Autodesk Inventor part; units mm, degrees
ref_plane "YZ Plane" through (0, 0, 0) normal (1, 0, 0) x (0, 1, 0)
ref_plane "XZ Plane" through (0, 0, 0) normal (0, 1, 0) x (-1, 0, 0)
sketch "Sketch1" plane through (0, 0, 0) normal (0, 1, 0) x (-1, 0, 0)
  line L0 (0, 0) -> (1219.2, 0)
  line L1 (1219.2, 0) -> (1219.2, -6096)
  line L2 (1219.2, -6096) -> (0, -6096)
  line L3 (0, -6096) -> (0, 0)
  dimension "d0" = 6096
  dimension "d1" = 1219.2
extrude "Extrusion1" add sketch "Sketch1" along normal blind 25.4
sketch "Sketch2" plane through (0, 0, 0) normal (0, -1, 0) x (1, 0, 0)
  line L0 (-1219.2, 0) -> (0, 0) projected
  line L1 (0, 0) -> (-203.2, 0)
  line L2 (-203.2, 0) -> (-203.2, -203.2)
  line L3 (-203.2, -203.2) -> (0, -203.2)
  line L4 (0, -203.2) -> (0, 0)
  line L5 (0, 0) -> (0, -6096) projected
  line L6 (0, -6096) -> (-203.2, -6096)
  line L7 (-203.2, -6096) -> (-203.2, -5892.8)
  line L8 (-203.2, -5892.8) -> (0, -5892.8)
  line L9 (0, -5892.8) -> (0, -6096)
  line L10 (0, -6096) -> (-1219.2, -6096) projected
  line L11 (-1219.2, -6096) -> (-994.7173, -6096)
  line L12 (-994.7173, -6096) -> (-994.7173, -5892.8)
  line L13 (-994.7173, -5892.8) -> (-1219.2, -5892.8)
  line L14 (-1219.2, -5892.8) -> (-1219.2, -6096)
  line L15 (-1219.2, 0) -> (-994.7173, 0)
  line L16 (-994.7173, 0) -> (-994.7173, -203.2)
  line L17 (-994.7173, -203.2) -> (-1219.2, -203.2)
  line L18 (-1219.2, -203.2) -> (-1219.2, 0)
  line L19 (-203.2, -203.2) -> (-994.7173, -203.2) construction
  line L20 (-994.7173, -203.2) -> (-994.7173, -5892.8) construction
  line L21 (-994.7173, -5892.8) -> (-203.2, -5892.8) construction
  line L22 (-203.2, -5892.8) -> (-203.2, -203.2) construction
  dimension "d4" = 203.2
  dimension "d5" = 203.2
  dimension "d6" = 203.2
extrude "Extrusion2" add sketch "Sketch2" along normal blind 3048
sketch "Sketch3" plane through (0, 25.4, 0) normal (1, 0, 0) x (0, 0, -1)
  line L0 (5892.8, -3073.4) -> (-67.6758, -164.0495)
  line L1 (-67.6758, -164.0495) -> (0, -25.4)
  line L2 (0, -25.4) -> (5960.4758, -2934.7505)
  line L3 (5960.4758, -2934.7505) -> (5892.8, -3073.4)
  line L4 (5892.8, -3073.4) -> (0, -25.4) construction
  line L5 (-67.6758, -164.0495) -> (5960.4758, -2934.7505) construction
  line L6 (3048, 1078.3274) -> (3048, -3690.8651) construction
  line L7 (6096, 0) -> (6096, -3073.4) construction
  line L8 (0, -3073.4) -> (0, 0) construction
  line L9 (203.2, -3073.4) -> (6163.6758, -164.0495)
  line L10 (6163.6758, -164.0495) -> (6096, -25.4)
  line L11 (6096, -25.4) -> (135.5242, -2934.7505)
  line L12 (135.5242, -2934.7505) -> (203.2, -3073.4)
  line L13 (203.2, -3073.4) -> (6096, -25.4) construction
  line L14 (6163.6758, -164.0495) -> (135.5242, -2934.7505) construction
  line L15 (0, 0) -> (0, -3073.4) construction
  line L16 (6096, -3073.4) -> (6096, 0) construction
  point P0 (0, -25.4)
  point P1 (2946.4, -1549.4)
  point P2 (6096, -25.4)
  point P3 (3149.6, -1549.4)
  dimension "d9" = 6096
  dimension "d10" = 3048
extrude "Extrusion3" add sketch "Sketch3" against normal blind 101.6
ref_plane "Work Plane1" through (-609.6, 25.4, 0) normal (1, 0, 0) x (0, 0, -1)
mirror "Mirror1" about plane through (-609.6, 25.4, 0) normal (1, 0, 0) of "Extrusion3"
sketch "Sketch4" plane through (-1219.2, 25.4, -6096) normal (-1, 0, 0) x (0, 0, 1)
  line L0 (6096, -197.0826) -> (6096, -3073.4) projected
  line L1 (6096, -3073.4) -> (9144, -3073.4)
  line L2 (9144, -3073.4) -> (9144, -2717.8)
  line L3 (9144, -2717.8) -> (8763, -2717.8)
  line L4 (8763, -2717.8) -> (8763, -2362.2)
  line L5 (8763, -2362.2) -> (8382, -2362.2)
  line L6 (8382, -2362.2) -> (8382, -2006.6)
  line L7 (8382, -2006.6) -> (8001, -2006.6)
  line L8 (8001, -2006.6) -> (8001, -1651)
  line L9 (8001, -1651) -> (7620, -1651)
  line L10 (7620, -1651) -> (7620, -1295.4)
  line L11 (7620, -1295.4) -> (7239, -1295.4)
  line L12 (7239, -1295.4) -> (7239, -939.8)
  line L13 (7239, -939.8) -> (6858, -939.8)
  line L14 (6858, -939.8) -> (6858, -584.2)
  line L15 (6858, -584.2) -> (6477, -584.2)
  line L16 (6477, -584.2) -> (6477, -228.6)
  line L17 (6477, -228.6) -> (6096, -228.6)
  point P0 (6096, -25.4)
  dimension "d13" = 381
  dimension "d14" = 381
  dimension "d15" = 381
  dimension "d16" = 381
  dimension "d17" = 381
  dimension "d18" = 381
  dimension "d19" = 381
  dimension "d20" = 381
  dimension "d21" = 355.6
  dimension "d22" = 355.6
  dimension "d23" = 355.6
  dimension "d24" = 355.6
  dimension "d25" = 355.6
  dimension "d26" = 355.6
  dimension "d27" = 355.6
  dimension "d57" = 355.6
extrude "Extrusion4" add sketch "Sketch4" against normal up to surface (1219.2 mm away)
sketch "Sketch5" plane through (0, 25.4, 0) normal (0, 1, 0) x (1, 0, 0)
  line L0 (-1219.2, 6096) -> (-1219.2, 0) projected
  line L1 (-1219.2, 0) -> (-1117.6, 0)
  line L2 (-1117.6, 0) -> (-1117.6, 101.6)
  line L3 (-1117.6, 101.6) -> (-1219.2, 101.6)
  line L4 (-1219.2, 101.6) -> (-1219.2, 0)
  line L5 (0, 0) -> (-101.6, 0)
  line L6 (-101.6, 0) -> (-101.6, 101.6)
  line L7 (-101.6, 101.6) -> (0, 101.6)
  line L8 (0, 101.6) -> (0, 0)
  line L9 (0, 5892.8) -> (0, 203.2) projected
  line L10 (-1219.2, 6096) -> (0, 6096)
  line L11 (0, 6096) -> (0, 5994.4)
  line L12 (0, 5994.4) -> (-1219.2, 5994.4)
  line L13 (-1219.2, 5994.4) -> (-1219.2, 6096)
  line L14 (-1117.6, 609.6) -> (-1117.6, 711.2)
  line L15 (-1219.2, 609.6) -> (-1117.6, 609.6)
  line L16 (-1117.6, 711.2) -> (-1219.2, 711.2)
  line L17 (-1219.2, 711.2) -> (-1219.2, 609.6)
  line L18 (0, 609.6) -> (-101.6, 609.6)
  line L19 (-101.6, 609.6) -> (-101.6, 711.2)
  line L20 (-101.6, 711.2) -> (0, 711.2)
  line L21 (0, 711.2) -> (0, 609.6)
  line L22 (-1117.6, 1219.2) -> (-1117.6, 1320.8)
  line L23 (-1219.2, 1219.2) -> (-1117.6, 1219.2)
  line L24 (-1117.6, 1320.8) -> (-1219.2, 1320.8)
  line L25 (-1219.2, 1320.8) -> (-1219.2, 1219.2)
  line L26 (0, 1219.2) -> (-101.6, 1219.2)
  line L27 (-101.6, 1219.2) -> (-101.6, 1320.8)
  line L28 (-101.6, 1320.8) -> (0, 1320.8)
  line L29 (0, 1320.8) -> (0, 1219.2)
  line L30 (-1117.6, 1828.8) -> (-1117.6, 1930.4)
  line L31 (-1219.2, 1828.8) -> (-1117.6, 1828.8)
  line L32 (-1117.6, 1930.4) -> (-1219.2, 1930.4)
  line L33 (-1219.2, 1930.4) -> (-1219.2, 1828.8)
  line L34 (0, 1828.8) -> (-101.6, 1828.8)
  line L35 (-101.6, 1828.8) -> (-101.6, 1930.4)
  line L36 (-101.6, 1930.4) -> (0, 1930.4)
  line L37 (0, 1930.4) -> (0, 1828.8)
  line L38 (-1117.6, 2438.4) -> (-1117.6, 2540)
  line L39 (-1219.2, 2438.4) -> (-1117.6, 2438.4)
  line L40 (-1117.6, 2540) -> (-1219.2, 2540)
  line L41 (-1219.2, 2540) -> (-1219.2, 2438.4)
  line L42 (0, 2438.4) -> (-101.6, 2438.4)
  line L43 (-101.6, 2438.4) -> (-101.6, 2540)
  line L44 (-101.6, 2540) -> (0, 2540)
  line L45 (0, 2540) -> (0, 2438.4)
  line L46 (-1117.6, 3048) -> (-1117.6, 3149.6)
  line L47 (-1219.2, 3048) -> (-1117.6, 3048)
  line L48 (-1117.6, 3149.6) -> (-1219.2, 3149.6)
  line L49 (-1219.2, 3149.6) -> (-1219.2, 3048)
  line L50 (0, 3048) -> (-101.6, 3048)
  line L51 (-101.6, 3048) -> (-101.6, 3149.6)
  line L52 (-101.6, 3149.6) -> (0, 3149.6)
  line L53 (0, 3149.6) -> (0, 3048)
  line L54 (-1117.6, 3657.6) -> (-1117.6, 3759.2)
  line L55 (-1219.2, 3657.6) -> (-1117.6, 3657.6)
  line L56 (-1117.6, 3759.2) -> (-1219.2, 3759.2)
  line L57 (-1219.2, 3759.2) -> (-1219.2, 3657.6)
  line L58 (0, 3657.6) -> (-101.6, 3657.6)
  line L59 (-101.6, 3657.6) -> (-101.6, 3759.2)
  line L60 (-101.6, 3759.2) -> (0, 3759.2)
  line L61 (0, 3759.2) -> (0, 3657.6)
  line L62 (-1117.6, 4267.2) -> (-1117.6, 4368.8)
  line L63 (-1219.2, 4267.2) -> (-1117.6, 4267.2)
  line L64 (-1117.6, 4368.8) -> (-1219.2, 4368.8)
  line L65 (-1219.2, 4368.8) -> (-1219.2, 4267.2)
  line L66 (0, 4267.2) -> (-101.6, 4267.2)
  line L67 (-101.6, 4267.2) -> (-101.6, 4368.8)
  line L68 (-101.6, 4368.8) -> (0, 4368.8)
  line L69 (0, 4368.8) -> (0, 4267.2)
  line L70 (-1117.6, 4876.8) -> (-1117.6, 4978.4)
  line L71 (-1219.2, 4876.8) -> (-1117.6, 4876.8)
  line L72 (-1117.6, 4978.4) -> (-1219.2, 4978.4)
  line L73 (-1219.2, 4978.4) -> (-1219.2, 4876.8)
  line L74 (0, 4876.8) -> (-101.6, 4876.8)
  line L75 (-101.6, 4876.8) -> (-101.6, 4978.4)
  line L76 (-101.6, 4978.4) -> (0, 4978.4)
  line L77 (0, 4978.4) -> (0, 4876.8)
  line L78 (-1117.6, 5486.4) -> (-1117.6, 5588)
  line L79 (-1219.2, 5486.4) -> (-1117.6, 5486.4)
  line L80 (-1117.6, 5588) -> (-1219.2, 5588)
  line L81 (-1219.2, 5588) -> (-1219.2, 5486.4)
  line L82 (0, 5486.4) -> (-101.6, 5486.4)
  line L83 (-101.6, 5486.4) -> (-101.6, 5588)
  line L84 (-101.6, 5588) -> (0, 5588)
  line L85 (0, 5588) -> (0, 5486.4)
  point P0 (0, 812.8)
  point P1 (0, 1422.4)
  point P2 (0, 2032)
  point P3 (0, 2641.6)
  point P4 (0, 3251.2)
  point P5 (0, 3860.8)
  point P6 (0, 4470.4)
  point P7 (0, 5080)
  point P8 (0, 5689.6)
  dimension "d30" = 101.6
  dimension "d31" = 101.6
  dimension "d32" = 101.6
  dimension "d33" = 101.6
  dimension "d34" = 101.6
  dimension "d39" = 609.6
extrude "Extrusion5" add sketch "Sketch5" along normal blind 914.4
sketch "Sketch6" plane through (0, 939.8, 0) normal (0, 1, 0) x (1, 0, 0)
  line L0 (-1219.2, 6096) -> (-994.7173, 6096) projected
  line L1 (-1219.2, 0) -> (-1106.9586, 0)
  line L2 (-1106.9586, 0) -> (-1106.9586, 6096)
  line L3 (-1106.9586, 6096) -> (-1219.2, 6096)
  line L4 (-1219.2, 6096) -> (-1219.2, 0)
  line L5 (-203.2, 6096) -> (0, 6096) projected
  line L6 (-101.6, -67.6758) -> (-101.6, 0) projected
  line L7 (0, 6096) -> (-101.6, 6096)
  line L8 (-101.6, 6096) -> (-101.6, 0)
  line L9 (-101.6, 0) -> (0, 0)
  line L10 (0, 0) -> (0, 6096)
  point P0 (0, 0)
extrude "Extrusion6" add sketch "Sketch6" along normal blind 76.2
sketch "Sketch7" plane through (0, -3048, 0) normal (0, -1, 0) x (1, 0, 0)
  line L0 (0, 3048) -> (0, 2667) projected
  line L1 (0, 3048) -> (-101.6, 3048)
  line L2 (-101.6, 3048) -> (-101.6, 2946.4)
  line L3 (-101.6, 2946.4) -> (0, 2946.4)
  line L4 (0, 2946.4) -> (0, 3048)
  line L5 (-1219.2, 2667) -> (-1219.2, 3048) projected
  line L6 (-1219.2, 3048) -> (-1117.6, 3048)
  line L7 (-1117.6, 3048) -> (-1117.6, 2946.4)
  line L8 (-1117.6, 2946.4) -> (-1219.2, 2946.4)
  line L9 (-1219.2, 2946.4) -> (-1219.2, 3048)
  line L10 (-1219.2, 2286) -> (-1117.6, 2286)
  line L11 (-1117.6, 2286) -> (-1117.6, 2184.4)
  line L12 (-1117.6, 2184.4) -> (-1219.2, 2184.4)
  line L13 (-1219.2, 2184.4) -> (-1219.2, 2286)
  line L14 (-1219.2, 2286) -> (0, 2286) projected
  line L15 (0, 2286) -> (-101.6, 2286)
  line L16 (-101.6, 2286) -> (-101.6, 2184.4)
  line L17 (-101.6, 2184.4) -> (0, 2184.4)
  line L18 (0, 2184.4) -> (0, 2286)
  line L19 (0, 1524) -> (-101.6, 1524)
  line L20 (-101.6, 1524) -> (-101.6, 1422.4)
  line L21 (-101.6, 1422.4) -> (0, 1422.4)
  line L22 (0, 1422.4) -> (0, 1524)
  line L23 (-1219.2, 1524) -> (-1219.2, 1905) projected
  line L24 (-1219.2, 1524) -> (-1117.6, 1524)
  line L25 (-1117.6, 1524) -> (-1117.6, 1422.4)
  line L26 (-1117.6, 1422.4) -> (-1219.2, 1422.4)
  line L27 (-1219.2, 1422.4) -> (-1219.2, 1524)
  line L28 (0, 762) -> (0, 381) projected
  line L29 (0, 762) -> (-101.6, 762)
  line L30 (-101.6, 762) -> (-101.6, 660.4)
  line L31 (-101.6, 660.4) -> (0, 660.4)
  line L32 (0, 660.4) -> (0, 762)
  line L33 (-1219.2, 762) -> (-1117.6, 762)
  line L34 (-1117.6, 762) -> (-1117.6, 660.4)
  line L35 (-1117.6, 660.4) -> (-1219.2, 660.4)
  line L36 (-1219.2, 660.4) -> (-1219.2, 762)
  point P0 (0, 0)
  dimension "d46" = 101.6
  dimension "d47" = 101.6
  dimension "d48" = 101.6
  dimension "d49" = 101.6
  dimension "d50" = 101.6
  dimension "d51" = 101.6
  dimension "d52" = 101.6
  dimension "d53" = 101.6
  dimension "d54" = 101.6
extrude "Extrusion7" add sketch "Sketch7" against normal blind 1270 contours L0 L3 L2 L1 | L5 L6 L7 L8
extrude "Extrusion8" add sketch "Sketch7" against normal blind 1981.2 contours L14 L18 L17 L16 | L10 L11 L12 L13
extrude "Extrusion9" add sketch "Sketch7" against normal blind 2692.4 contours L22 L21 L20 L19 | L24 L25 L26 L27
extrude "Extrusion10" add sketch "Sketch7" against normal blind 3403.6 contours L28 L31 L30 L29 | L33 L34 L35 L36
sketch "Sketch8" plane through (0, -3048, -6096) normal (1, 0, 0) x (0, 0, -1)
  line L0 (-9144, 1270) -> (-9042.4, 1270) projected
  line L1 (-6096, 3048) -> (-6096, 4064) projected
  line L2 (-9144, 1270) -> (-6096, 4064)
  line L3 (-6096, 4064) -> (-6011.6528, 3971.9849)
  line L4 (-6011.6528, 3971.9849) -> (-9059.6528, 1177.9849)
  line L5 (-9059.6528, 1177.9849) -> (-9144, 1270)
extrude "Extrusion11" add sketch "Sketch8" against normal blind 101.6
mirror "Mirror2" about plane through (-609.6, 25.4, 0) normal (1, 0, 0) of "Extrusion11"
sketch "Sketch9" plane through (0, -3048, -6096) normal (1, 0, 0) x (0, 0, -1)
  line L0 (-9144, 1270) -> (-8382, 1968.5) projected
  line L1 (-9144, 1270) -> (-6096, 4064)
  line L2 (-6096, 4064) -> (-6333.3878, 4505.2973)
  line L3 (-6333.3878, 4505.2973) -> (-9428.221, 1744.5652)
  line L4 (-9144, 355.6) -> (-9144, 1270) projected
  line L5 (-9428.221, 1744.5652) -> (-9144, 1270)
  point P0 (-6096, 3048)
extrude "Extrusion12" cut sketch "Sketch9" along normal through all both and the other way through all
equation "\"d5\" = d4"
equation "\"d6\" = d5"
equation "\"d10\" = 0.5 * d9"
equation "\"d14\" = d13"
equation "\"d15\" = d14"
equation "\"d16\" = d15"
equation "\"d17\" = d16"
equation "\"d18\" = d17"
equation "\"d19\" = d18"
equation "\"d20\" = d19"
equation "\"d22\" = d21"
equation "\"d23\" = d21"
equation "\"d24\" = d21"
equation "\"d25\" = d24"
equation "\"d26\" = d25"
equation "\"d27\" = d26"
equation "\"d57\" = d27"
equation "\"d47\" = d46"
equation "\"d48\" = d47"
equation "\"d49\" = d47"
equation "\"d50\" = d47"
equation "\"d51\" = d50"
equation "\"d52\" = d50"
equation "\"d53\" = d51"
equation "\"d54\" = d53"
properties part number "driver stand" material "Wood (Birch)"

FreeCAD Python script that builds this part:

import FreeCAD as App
import Part
import Sketcher
Q = App.Units.Quantity


def add_polygon(sketch, points):
    """Adds a closed chain of lines whose ends are joined by coincident constraints."""
    first, n = sketch.GeometryCount, len(points)
    for a, b in zip(points, points[1:] + points[:1]):
        sketch.addGeometry(Part.LineSegment(App.Vector(*a, 0), App.Vector(*b, 0)), False)
    for i in range(n):
        sketch.addConstraint(Sketcher.Constraint("Coincident", first + i, 2, first + (i + 1) % n, 1))

doc = App.newDocument("Part")
body = doc.addObject("PartDesign::Body", "Body")

sketch1 = body.newObject("Sketcher::SketchObject", "Sketch")
sketch1.AttachmentSupport = (doc.getObject("XZ_Plane"), [""])
sketch1.MapMode = "FlatFace"
add_polygon(sketch1, [(-1219, 0), (0, 0), (0, -6096), (-1219, -6096)])
sketch1.addConstraint(Sketcher.Constraint("Horizontal", 0))
sketch1.addConstraint(Sketcher.Constraint("Vertical", 1))
sketch1.addConstraint(Sketcher.Constraint("Horizontal", 2))
sketch1.addConstraint(Sketcher.Constraint("Vertical", 3))
sketch1.addConstraint(Sketcher.Constraint("Coincident", 0, 2, -1, 1))
sketch1.addConstraint(Sketcher.Constraint("DistanceX", 0, 1, 0, 2, Q("48 in")))
sketch1.addConstraint(Sketcher.Constraint("DistanceY", 1, 2, 1, 1, Q("240 in")))
pad1 = body.newObject("PartDesign::Pad", "Pad")
pad1.Profile = sketch1
pad1.Length = Q("1 in")
pad1.Reversed = True

sketch2 = body.newObject("Sketcher::SketchObject", "Sketch001")
sketch2.AttachmentSupport = (doc.getObject("XZ_Plane"), [""])
sketch2.MapMode = "FlatFace"
add_polygon(sketch2, [(-1219, -6096), (-995, -6096), (-995, -5893), (-1219, -5893)])
add_polygon(sketch2, [(0, -6096), (0, -5893), (-203, -5893), (-203, -6096)])
add_polygon(sketch2, [(0, 0), (-203, 0), (-203, -203), (0, -203)])
add_polygon(sketch2, [(-995, 0), (-1219, 0), (-1219, -203), (-995, -203)])
sketch2.addConstraint(Sketcher.Constraint("Horizontal", 0))
sketch2.addConstraint(Sketcher.Constraint("Vertical", 1))
sketch2.addConstraint(Sketcher.Constraint("Horizontal", 2))
sketch2.addConstraint(Sketcher.Constraint("Vertical", 3))
sketch2.addConstraint(Sketcher.Constraint("Vertical", 4))
sketch2.addConstraint(Sketcher.Constraint("Horizontal", 5))
sketch2.addConstraint(Sketcher.Constraint("Vertical", 6))
sketch2.addConstraint(Sketcher.Constraint("Horizontal", 7))
sketch2.addConstraint(Sketcher.Constraint("Horizontal", 8))
sketch2.addConstraint(Sketcher.Constraint("Vertical", 9))
sketch2.addConstraint(Sketcher.Constraint("Horizontal", 10))
sketch2.addConstraint(Sketcher.Constraint("Vertical", 11))
sketch2.addConstraint(Sketcher.Constraint("Horizontal", 12))
sketch2.addConstraint(Sketcher.Constraint("Vertical", 13))
sketch2.addConstraint(Sketcher.Constraint("Horizontal", 14))
sketch2.addConstraint(Sketcher.Constraint("Vertical", 15))
sketch2.addConstraint(Sketcher.Constraint("Coincident", 11, 2, -1, 1))
sketch2.addConstraint(Sketcher.Constraint("PointOnObject", 4, 2, -2))
sketch2.addConstraint(Sketcher.Constraint("PointOnObject", 12, 2, -1))
sketch2.addConstraint(Sketcher.Constraint("Horizontal", 2, 2, 4, 2))
sketch2.addConstraint(Sketcher.Constraint("Horizontal", 3, 2, 6, 2))
sketch2.addConstraint(Sketcher.Constraint("Horizontal", 10, 2, 13, 2))
sketch2.addConstraint(Sketcher.Constraint("Vertical", 6, 2, 8, 2))
sketch2.addConstraint(Sketcher.Constraint("Vertical", 3, 2, 12, 2))
sketch2.addConstraint(Sketcher.Constraint("Vertical", 1, 2, 14, 2))
sketch2.addConstraint(Sketcher.Constraint("Equal", 10, 1))
sketch2.addConstraint(Sketcher.Constraint("Equal", 6, 9))
sketch2.addConstraint(Sketcher.Constraint("DistanceX", 5, 2, 5, 1, Q("8 in")))
sketch2.addConstraint(Sketcher.Constraint("DistanceY", 0, 2, -1, 1, Q("240 in")))
sketch2.addConstraint(Sketcher.Constraint("DistanceX", 2, 2, -1, 1, Q("48 in")))
sketch2.addConstraint(Sketcher.Constraint("DistanceX", 0, 1, 0, 2, Q("8.8379 in")))
pad2 = body.newObject("PartDesign::Pad", "Pad001")
pad2.Profile = sketch2
pad2.Length = Q("120 in")

sketch3 = body.newObject("Sketcher::SketchObject", "Sketch002")
sketch3.AttachmentSupport = (doc.getObject("YZ_Plane"), [""])
sketch3.MapMode = "FlatFace"
add_polygon(sketch3, [(-1659, -3048), (-3048, -5893), (-2909, -5960), (-1574, -3224), (-139, -6164), (0, -6096), (-1488, -3048), (0, 0), (-139, 68), (-1574, -2872), (-2909, -136), (-3048, -203)])
sketch3.addConstraint(Sketcher.Constraint("Coincident", 6, 2, -1, 1))
sketch3.addConstraint(Sketcher.Constraint("PointOnObject", 4, 2, -2))
sketch3.addConstraint(Sketcher.Constraint("Perpendicular", 0, 1))
sketch3.addConstraint(Sketcher.Constraint("Perpendicular", 1, 2))
sketch3.addConstraint(Sketcher.Constraint("Perpendicular", 3, 4))
sketch3.addConstraint(Sketcher.Constraint("Perpendicular", 4, 5))
sketch3.addConstraint(Sketcher.Constraint("Parallel", 2, 6))
sketch3.addConstraint(Sketcher.Constraint("Perpendicular", 6, 7))
sketch3.addConstraint(Sketcher.Constraint("Perpendicular", 7, 8))
sketch3.addConstraint(Sketcher.Constraint("Parallel", 5, 9))
sketch3.addConstraint(Sketcher.Constraint("Perpendicular", 9, 10))
sketch3.addConstraint(Sketcher.Constraint("Perpendicular", 10, 11))
sketch3.addConstraint(Sketcher.Constraint("Horizontal", 5, 2, 11, 2))
sketch3.addConstraint(Sketcher.Constraint("Vertical", 3, 2, 7, 2))
sketch3.addConstraint(Sketcher.Constraint("Vertical", 2, 2, 8, 2))
sketch3.addConstraint(Sketcher.Constraint("Vertical", 1, 2, 9, 2))
sketch3.addConstraint(Sketcher.Constraint("Vertical", 0, 2, 10, 2))
sketch3.addConstraint(Sketcher.Constraint("Equal", 1, 4))
sketch3.addConstraint(Sketcher.Constraint("DistanceX", 0, 2, -1, 1, Q("120 in")))
sketch3.addConstraint(Sketcher.Constraint("DistanceY", 4, 2, -1, 1, Q("240 in")))
sketch3.addConstraint(Sketcher.Constraint("DistanceY", 0, 2, -1, 1, Q("232 in")))
sketch3.addConstraint(Sketcher.Constraint("DistanceX", 11, 2, -1, 1, Q("65.332 in")))
sketch3.addConstraint(Sketcher.Constraint("Distance", 1, Q("6.0742 in")))
pad3 = body.newObject("PartDesign::Pad", "Pad002")
pad3.Profile = sketch3
pad3.Length = Q("4 in")
pad3.Reversed = True
doc.recompute()

datumplane = body.newObject("PartDesign::Plane", "DatumPlane")
datumplane.AttachmentSupport = (doc.getObject("YZ_Plane"), [""])
datumplane.MapMode = "FlatFace"
datumplane.AttachmentOffset = App.Placement(App.Vector(0, 0, -24 * 25.4), App.Rotation())
mirrored = body.newObject("PartDesign::Mirrored", "Mirrored")
mirrored.Originals = [pad3]
mirrored.MirrorPlane = (datumplane, [""])
body.Tip = mirrored

sketch4 = body.newObject("Sketcher::SketchObject", "Sketch003")
sketch4.AttachmentSupport = (doc.getObject("YZ_Plane"), [""])
sketch4.MapMode = "FlatFace"
sketch4.AttachmentOffset = App.Placement(App.Vector(0, 0, -48 * 25.4), App.Rotation())
add_polygon(sketch4, [(-203, 381), (-203, 0), (-3048, 0), (-3048, 3048), (-2692, 3048), (-2692, 2667), (-2337, 2667), (-2337, 2286), (-1981, 2286), (-1981, 1905), (-1626, 1905), (-1626, 1524), (-1270, 1524), (-1270, 1143), (-914, 1143), (-914, 762), (-559, 762), (-559, 381)])
sketch4.addConstraint(Sketcher.Constraint("Vertical", 0))
sketch4.addConstraint(Sketcher.Constraint("Horizontal", 1))
sketch4.addConstraint(Sketcher.Constraint("Vertical", 2))
sketch4.addConstraint(Sketcher.Constraint("Horizontal", 3))
sketch4.addConstraint(Sketcher.Constraint("Vertical", 4))
sketch4.addConstraint(Sketcher.Constraint("Horizontal", 5))
sketch4.addConstraint(Sketcher.Constraint("Vertical", 6))
sketch4.addConstraint(Sketcher.Constraint("Horizontal", 7))
sketch4.addConstraint(Sketcher.Constraint("Vertical", 8))
sketch4.addConstraint(Sketcher.Constraint("Horizontal", 9))
sketch4.addConstraint(Sketcher.Constraint("Vertical", 10))
sketch4.addConstraint(Sketcher.Constraint("Horizontal", 11))
sketch4.addConstraint(Sketcher.Constraint("Vertical", 12))
sketch4.addConstraint(Sketcher.Constraint("Horizontal", 13))
sketch4.addConstraint(Sketcher.Constraint("Vertical", 14))
sketch4.addConstraint(Sketcher.Constraint("Horizontal", 15))
sketch4.addConstraint(Sketcher.Constraint("Vertical", 16))
sketch4.addConstraint(Sketcher.Constraint("Horizontal", 17))
sketch4.addConstraint(Sketcher.Constraint("PointOnObject", 0, 2, -1))
sketch4.addConstraint(Sketcher.Constraint("Equal", 3, 5))
sketch4.addConstraint(Sketcher.Constraint("Equal", 5, 7))
sketch4.addConstraint(Sketcher.Constraint("Equal", 7, 9))
sketch4.addConstraint(Sketcher.Constraint("Equal", 9, 11))
sketch4.addConstraint(Sketcher.Constraint("Equal", 11, 13))
sketch4.addConstraint(Sketcher.Constraint("Equal", 13, 15))
sketch4.addConstraint(Sketcher.Constraint("Equal", 15, 17))
sketch4.addConstraint(Sketcher.Constraint("Equal", 0, 4))
sketch4.addConstraint(Sketcher.Constraint("Equal", 4, 6))
sketch4.addConstraint(Sketcher.Constraint("Equal", 6, 8))
sketch4.addConstraint(Sketcher.Constraint("Equal", 8, 10))
sketch4.addConstraint(Sketcher.Constraint("Equal", 10, 12))
sketch4.addConstraint(Sketcher.Constraint("Equal", 12, 14))
sketch4.addConstraint(Sketcher.Constraint("Equal", 14, 16))
sketch4.addConstraint(Sketcher.Constraint("DistanceX", 3, 1, 3, 2, Q("14 in")))
sketch4.addConstraint(Sketcher.Constraint("DistanceY", 0, 2, 0, 1, Q("15 in")))
sketch4.addConstraint(Sketcher.Constraint("DistanceX", 0, 2, -1, 1, Q("8 in")))
pad4 = body.newObject("PartDesign::Pad", "Pad003")
pad4.Profile = sketch4
pad4.Length = Q("48 in")

sketch5 = body.newObject("Sketcher::SketchObject", "Sketch004")
sketch5.AttachmentSupport = (doc.getObject("XZ_Plane"), [""])
sketch5.MapMode = "FlatFace"
sketch5.AttachmentOffset = App.Placement(App.Vector(0, 0, -1 * 25.4), App.Rotation())
add_polygon(sketch5, [(0, -6096), (-1219, -6096), (-1219, -5994), (0, -5994)])
add_polygon(sketch5, [(-1118, -102), (-1219, -102), (-1219, 0), (-1118, 0)])
add_polygon(sketch5, [(-1118, -711), (-1219, -711), (-1219, -610), (-1118, -610)])
add_polygon(sketch5, [(-1118, -1321), (-1219, -1321), (-1219, -1219), (-1118, -1219)])
add_polygon(sketch5, [(-1118, -1930), (-1219, -1930), (-1219, -1829), (-1118, -1829)])
add_polygon(sketch5, [(-1118, -2540), (-1219, -2540), (-1219, -2438), (-1118, -2438)])
add_polygon(sketch5, [(-1118, -3150), (-1219, -3150), (-1219, -3048), (-1118, -3048)])
add_polygon(sketch5, [(-1118, -3759), (-1219, -3759), (-1219, -3658), (-1118, -3658)])
add_polygon(sketch5, [(-1118, -4369), (-1219, -4369), (-1219, -4267), (-1118, -4267)])
add_polygon(sketch5, [(-1118, -4978), (-1219, -4978), (-1219, -4877), (-1118, -4877)])
add_polygon(sketch5, [(-1118, -5588), (-1219, -5588), (-1219, -5486), (-1118, -5486)])
add_polygon(sketch5, [(-102, 0), (0, 0), (0, -102), (-102, -102)])
add_polygon(sketch5, [(0, -610), (0, -711), (-102, -711), (-102, -610)])
add_polygon(sketch5, [(0, -1219), (0, -1321), (-102, -1321), (-102, -1219)])
add_polygon(sketch5, [(0, -1829), (0, -1930), (-102, -1930), (-102, -1829)])
add_polygon(sketch5, [(0, -2438), (0, -2540), (-102, -2540), (-102, -2438)])
add_polygon(sketch5, [(0, -3048), (0, -3150), (-102, -3150), (-102, -3048)])
add_polygon(sketch5, [(0, -3658), (0, -3759), (-102, -3759), (-102, -3658)])
add_polygon(sketch5, [(0, -4267), (0, -4369), (-102, -4369), (-102, -4267)])
add_polygon(sketch5, [(0, -4877), (0, -4978), (-102, -4978), (-102, -4877)])
add_polygon(sketch5, [(0, -5486), (0, -5588), (-102, -5588), (-102, -5486)])
sketch5.addConstraint(Sketcher.Constraint("Horizontal", 0))
sketch5.addConstraint(Sketcher.Constraint("Vertical", 1))
sketch5.addConstraint(Sketcher.Constraint("Horizontal", 2))
sketch5.addConstraint(Sketcher.Constraint("Vertical", 3))
sketch5.addConstraint(Sketcher.Constraint("Horizontal", 4))
sketch5.addConstraint(Sketcher.Constraint("Vertical", 5))
sketch5.addConstraint(Sketcher.Constraint("Horizontal", 6))
sketch5.addConstraint(Sketcher.Constraint("Vertical", 7))
sketch5.addConstraint(Sketcher.Constraint("Horizontal", 8))
sketch5.addConstraint(Sketcher.Constraint("Vertical", 9))
sketch5.addConstraint(Sketcher.Constraint("Horizontal", 10))
sketch5.addConstraint(Sketcher.Constraint("Vertical", 11))
sketch5.addConstraint(Sketcher.Constraint("Horizontal", 12))
sketch5.addConstraint(Sketcher.Constraint("Vertical", 13))
sketch5.addConstraint(Sketcher.Constraint("Horizontal", 14))
sketch5.addConstraint(Sketcher.Constraint("Vertical", 15))
sketch5.addConstraint(Sketcher.Constraint("Horizontal", 16))
sketch5.addConstraint(Sketcher.Constraint("Vertical", 17))
sketch5.addConstraint(Sketcher.Constraint("Horizontal", 18))
sketch5.addConstraint(Sketcher.Constraint("Vertical", 19))
sketch5.addConstraint(Sketcher.Constraint("Horizontal", 20))
sketch5.addConstraint(Sketcher.Constraint("Vertical", 21))
sketch5.addConstraint(Sketcher.Constraint("Horizontal", 22))
sketch5.addConstraint(Sketcher.Constraint("Vertical", 23))
sketch5.addConstraint(Sketcher.Constraint("Horizontal", 24))
sketch5.addConstraint(Sketcher.Constraint("Vertical", 25))
sketch5.addConstraint(Sketcher.Constraint("Horizontal", 26))
sketch5.addConstraint(Sketcher.Constraint("Vertical", 27))
sketch5.addConstraint(Sketcher.Constraint("Horizontal", 28))
sketch5.addConstraint(Sketcher.Constraint("Vertical", 29))
sketch5.addConstraint(Sketcher.Constraint("Horizontal", 30))
sketch5.addConstraint(Sketcher.Constraint("Vertical", 31))
sketch5.addConstraint(Sketcher.Constraint("Horizontal", 32))
sketch5.addConstraint(Sketcher.Constraint("Vertical", 33))
sketch5.addConstraint(Sketcher.Constraint("Horizontal", 34))
sketch5.addConstraint(Sketcher.Constraint("Vertical", 35))
sketch5.addConstraint(Sketcher.Constraint("Horizontal", 36))
sketch5.addConstraint(Sketcher.Constraint("Vertical", 37))
sketch5.addConstraint(Sketcher.Constraint("Horizontal", 38))
sketch5.addConstraint(Sketcher.Constraint("Vertical", 39))
sketch5.addConstraint(Sketcher.Constraint("Horizontal", 40))
sketch5.addConstraint(Sketcher.Constraint("Vertical", 41))
sketch5.addConstraint(Sketcher.Constraint("Horizontal", 42))
sketch5.addConstraint(Sketcher.Constraint("Vertical", 43))
sketch5.addConstraint(Sketcher.Constraint("Horizontal", 44))
sketch5.addConstraint(Sketcher.Constraint("Vertical", 45))
sketch5.addConstraint(Sketcher.Constraint("Horizontal", 46))
sketch5.addConstraint(Sketcher.Constraint("Vertical", 47))
sketch5.addConstraint(Sketcher.Constraint("Vertical", 48))
sketch5.addConstraint(Sketcher.Constraint("Horizontal", 49))
sketch5.addConstraint(Sketcher.Constraint("Vertical", 50))
sketch5.addConstraint(Sketcher.Constraint("Horizontal", 51))
sketch5.addConstraint(Sketcher.Constraint("Vertical", 52))
sketch5.addConstraint(Sketcher.Constraint("Horizontal", 53))
sketch5.addConstraint(Sketcher.Constraint("Vertical", 54))
sketch5.addConstraint(Sketcher.Constraint("Horizontal", 55))
sketch5.addConstraint(Sketcher.Constraint("Vertical", 56))
sketch5.addConstraint(Sketcher.Constraint("Horizontal", 57))
sketch5.addConstraint(Sketcher.Constraint("Vertical", 58))
sketch5.addConstraint(Sketcher.Constraint("Horizontal", 59))
sketch5.addConstraint(Sketcher.Constraint("Vertical", 60))
sketch5.addConstraint(Sketcher.Constraint("Horizontal", 61))
sketch5.addConstraint(Sketcher.Constraint("Vertical", 62))
sketch5.addConstraint(Sketcher.Constraint("Horizontal", 63))
sketch5.addConstraint(Sketcher.Constraint("Vertical", 64))
sketch5.addConstraint(Sketcher.Constraint("Horizontal", 65))
sketch5.addConstraint(Sketcher.Constraint("Vertical", 66))
sketch5.addConstraint(Sketcher.Constraint("Horizontal", 67))
sketch5.addConstraint(Sketcher.Constraint("Vertical", 68))
sketch5.addConstraint(Sketcher.Constraint("Horizontal", 69))
sketch5.addConstraint(Sketcher.Constraint("Vertical", 70))
sketch5.addConstraint(Sketcher.Constraint("Horizontal", 71))
sketch5.addConstraint(Sketcher.Constraint("Vertical", 72))
sketch5.addConstraint(Sketcher.Constraint("Horizontal", 73))
sketch5.addConstraint(Sketcher.Constraint("Vertical", 74))
sketch5.addConstraint(Sketcher.Constraint("Horizontal", 75))
sketch5.addConstraint(Sketcher.Constraint("Vertical", 76))
sketch5.addConstraint(Sketcher.Constraint("Horizontal", 77))
sketch5.addConstraint(Sketcher.Constraint("Vertical", 78))
sketch5.addConstraint(Sketcher.Constraint("Horizontal", 79))
sketch5.addConstraint(Sketcher.Constraint("Vertical", 80))
sketch5.addConstraint(Sketcher.Constraint("Horizontal", 81))
sketch5.addConstraint(Sketcher.Constraint("Vertical", 82))
sketch5.addConstraint(Sketcher.Constraint("Horizontal", 83))
sketch5.addConstraint(Sketcher.Constraint("Coincident", 44, 2, -1, 1))
sketch5.addConstraint(Sketcher.Constraint("PointOnObject", 2, 2, -2))
sketch5.addConstraint(Sketcher.Constraint("PointOnObject", 5, 2, -1))
sketch5.addConstraint(Sketcher.Constraint("PointOnObject", 48, 2, -2))
sketch5.addConstraint(Sketcher.Constraint("PointOnObject", 52, 2, -2))
sketch5.addConstraint(Sketcher.Constraint("PointOnObject", 56, 2, -2))
sketch5.addConstraint(Sketcher.Constraint("PointOnObject", 60, 2, -2))
sketch5.addConstraint(Sketcher.Constraint("PointOnObject", 64, 2, -2))
sketch5.addConstraint(Sketcher.Constraint("PointOnObject", 68, 2, -2))
sketch5.addConstraint(Sketcher.Constraint("PointOnObject", 72, 2, -2))
sketch5.addConstraint(Sketcher.Constraint("PointOnObject", 76, 2, -2))
sketch5.addConstraint(Sketcher.Constraint("PointOnObject", 80, 2, -2))
sketch5.addConstraint(Sketcher.Constraint("Horizontal", 7, 2, 45, 2))
sketch5.addConstraint(Sketcher.Constraint("Horizontal", 11, 2, 48, 2))
sketch5.addConstraint(Sketcher.Constraint("Horizontal", 10, 2, 50, 2))
sketch5.addConstraint(Sketcher.Constraint("Horizontal", 15, 2, 52, 2))
sketch5.addConstraint(Sketcher.Constraint("Horizontal", 14, 2, 54, 2))
sketch5.addConstraint(Sketcher.Constraint("Horizontal", 19, 2, 56, 2))
sketch5.addConstraint(Sketcher.Constraint("Horizontal", 18, 2, 58, 2))
sketch5.addConstraint(Sketcher.Constraint("Horizontal", 23, 2, 60, 2))
sketch5.addConstraint(Sketcher.Constraint("Horizontal", 22, 2, 62, 2))
sketch5.addConstraint(Sketcher.Constraint("Horizontal", 27, 2, 64, 2))
sketch5.addConstraint(Sketcher.Constraint("Horizontal", 26, 2, 66, 2))
sketch5.addConstraint(Sketcher.Constraint("Horizontal", 31, 2, 68, 2))
sketch5.addConstraint(Sketcher.Constraint("Horizontal", 30, 2, 70, 2))
sketch5.addConstraint(Sketcher.Constraint("Horizontal", 35, 2, 72, 2))
sketch5.addConstraint(Sketcher.Constraint("Horizontal", 34, 2, 74, 2))
sketch5.addConstraint(Sketcher.Constraint("Horizontal", 39, 2, 76, 2))
sketch5.addConstraint(Sketcher.Constraint("Horizontal", 38, 2, 78, 2))
sketch5.addConstraint(Sketcher.Constraint("Horizontal", 43, 2, 80, 2))
sketch5.addConstraint(Sketcher.Constraint("Horizontal", 42, 2, 82, 2))
sketch5.addConstraint(Sketcher.Constraint("Vertical", 1, 2, 4, 2))
sketch5.addConstraint(Sketcher.Constraint("Vertical", 5, 2, 8, 2))
sketch5.addConstraint(Sketcher.Constraint("Vertical", 7, 2, 10, 2))
sketch5.addConstraint(Sketcher.Constraint("Vertical", 9, 2, 12, 2))
sketch5.addConstraint(Sketcher.Constraint("Vertical", 11, 2, 14, 2))
sketch5.addConstraint(Sketcher.Constraint("Vertical", 13, 2, 16, 2))
sketch5.addConstraint(Sketcher.Constraint("Vertical", 15, 2, 18, 2))
sketch5.addConstraint(Sketcher.Constraint("Vertical", 17, 2, 20, 2))
sketch5.addConstraint(Sketcher.Constraint("Vertical", 19, 2, 22, 2))
sketch5.addConstraint(Sketcher.Constraint("Vertical", 21, 2, 24, 2))
sketch5.addConstraint(Sketcher.Constraint("Vertical", 23, 2, 26, 2))
sketch5.addConstraint(Sketcher.Constraint("Vertical", 25, 2, 28, 2))
sketch5.addConstraint(Sketcher.Constraint("Vertical", 27, 2, 30, 2))
sketch5.addConstraint(Sketcher.Constraint("Vertical", 29, 2, 32, 2))
sketch5.addConstraint(Sketcher.Constraint("Vertical", 31, 2, 34, 2))
sketch5.addConstraint(Sketcher.Constraint("Vertical", 33, 2, 36, 2))
sketch5.addConstraint(Sketcher.Constraint("Vertical", 35, 2, 38, 2))
sketch5.addConstraint(Sketcher.Constraint("Vertical", 37, 2, 40, 2))
sketch5.addConstraint(Sketcher.Constraint("Vertical", 39, 2, 42, 2))
sketch5.addConstraint(Sketcher.Constraint("Vertical", 47, 2, 49, 2))
sketch5.addConstraint(Sketcher.Constraint("Vertical", 50, 2, 53, 2))
sketch5.addConstraint(Sketcher.Constraint("Vertical", 54, 2, 57, 2))
sketch5.addConstraint(Sketcher.Constraint("Vertical", 58, 2, 61, 2))
sketch5.addConstraint(Sketcher.Constraint("Vertical", 62, 2, 65, 2))
sketch5.addConstraint(Sketcher.Constraint("Vertical", 66, 2, 69, 2))
sketch5.addConstraint(Sketcher.Constraint("Vertical", 70, 2, 73, 2))
sketch5.addConstraint(Sketcher.Constraint("Vertical", 74, 2, 77, 2))
sketch5.addConstraint(Sketcher.Constraint("Vertical", 78, 2, 81, 2))
sketch5.addConstraint(Sketcher.Constraint("Equal", 42, 44))
sketch5.addConstraint(Sketcher.Constraint("Equal", 83, 1))
sketch5.addConstraint(Sketcher.Constraint("Equal", 3, 5))
sketch5.addConstraint(Sketcher.Constraint("Equal", 7, 9))
sketch5.addConstraint(Sketcher.Constraint("Equal", 11, 13))
sketch5.addConstraint(Sketcher.Constraint("Equal", 15, 17))
sketch5.addConstraint(Sketcher.Constraint("Equal", 19, 21))
sketch5.addConstraint(Sketcher.Constraint("Equal", 23, 25))
sketch5.addConstraint(Sketcher.Constraint("Equal", 27, 29))
sketch5.addConstraint(Sketcher.Constraint("Equal", 31, 33))
sketch5.addConstraint(Sketcher.Constraint("Equal", 35, 37))
sketch5.addConstraint(Sketcher.Constraint("Equal", 39, 41))
sketch5.addConstraint(Sketcher.Constraint("DistanceX", 4, 2, 4, 1, Q("4 in")))
sketch5.addConstraint(Sketcher.Constraint("DistanceY", 9, 2, -1, 1, Q("24 in")))
sketch5.addConstraint(Sketcher.Constraint("DistanceX", 0, 2, 0, 1, Q("48 in")))
sketch5.addConstraint(Sketcher.Constraint("DistanceY", 0, 2, -1, 1, Q("240 in")))
sketch5.addConstraint(Sketcher.Constraint("DistanceY", 12, 2, -1, 1, Q("52 in")))
sketch5.addConstraint(Sketcher.Constraint("DistanceY", 16, 2, -1, 1, Q("76 in")))
sketch5.addConstraint(Sketcher.Constraint("DistanceY", 20, 2, -1, 1, Q("100 in")))
sketch5.addConstraint(Sketcher.Constraint("DistanceY", 24, 2, -1, 1, Q("124 in")))
sketch5.addConstraint(Sketcher.Constraint("DistanceY", 28, 2, -1, 1, Q("148 in")))
sketch5.addConstraint(Sketcher.Constraint("DistanceY", 32, 2, -1, 1, Q("172 in")))
sketch5.addConstraint(Sketcher.Constraint("DistanceY", 36, 2, -1, 1, Q("196 in")))
sketch5.addConstraint(Sketcher.Constraint("DistanceY", 40, 2, -1, 1, Q("220 in")))
pad5 = body.newObject("PartDesign::Pad", "Pad004")
pad5.Profile = sketch5
pad5.Length = Q("36 in")
pad5.Reversed = True

sketch6 = body.newObject("Sketcher::SketchObject", "Sketch005")
sketch6.AttachmentSupport = (doc.getObject("XZ_Plane"), [""])
sketch6.MapMode = "FlatFace"
sketch6.AttachmentOffset = App.Placement(App.Vector(0, 0, -37 * 25.4), App.Rotation())
add_polygon(sketch6, [(-1107, -6096), (-1219, -6096), (-1219, 0), (-1107, 0)])
add_polygon(sketch6, [(0, -6096), (-102, -6096), (-102, 0), (0, 0)])
sketch6.addConstraint(Sketcher.Constraint("Horizontal", 0))
sketch6.addConstraint(Sketcher.Constraint("Vertical", 1))
sketch6.addConstraint(Sketcher.Constraint("Horizontal", 2))
sketch6.addConstraint(Sketcher.Constraint("Vertical", 3))
sketch6.addConstraint(Sketcher.Constraint("Horizontal", 4))
sketch6.addConstraint(Sketcher.Constraint("Vertical", 5))
sketch6.addConstraint(Sketcher.Constraint("Horizontal", 6))
sketch6.addConstraint(Sketcher.Constraint("Vertical", 7))
sketch6.addConstraint(Sketcher.Constraint("Coincident", 6, 2, -1, 1))
sketch6.addConstraint(Sketcher.Constraint("PointOnObject", 1, 2, -1))
sketch6.addConstraint(Sketcher.Constraint("Horizontal", 3, 2, 4, 2))
sketch6.addConstraint(Sketcher.Constraint("DistanceX", 4, 2, 4, 1, Q("4 in")))
sketch6.addConstraint(Sketcher.Constraint("DistanceY", 1, 1, 1, 2, Q("240 in")))
sketch6.addConstraint(Sketcher.Constraint("DistanceX", 0, 2, -1, 1, Q("48 in")))
sketch6.addConstraint(Sketcher.Constraint("DistanceX", 0, 2, 0, 1, 112.2414))
pad6 = body.newObject("PartDesign::Pad", "Pad005")
pad6.Profile = sketch6
pad6.Length = Q("3 in")
pad6.Reversed = True

sketch7 = body.newObject("Sketcher::SketchObject", "Sketch006")
sketch7.AttachmentSupport = (doc.getObject("XZ_Plane"), [""])
sketch7.MapMode = "FlatFace"
sketch7.AttachmentOffset = App.Placement(App.Vector(0, 0, 120 * 25.4), App.Rotation())
add_polygon(sketch7, [(0, 2946), (0, 3048), (-102, 3048), (-102, 2946)])
add_polygon(sketch7, [(-1219, 3048), (-1219, 2946), (-1118, 2946), (-1118, 3048)])
sketch7.addConstraint(Sketcher.Constraint("Vertical", 0))
sketch7.addConstraint(Sketcher.Constraint("Horizontal", 1))
sketch7.addConstraint(Sketcher.Constraint("Vertical", 2))
sketch7.addConstraint(Sketcher.Constraint("Horizontal", 3))
sketch7.addConstraint(Sketcher.Constraint("Vertical", 4))
sketch7.addConstraint(Sketcher.Constraint("Horizontal", 5))
sketch7.addConstraint(Sketcher.Constraint("Vertical", 6))
sketch7.addConstraint(Sketcher.Constraint("Horizontal", 7))
sketch7.addConstraint(Sketcher.Constraint("PointOnObject", 0, 2, -2))
sketch7.addConstraint(Sketcher.Constraint("Horizontal", 3, 2, 4, 2))
sketch7.addConstraint(Sketcher.Constraint("Horizontal", 1, 2, 6, 2))
sketch7.addConstraint(Sketcher.Constraint("Equal", 3, 5))
sketch7.addConstraint(Sketcher.Constraint("Equal", 7, 0))
sketch7.addConstraint(Sketcher.Constraint("DistanceX", 1, 2, 1, 1, Q("4 in")))
sketch7.addConstraint(Sketcher.Constraint("DistanceY", -1, 1, 0, 2, Q("120 in")))
sketch7.addConstraint(Sketcher.Constraint("DistanceX", 4, 2, -1, 1, Q("48 in")))
pad7 = body.newObject("PartDesign::Pad", "Pad006")
pad7.Profile = sketch7
pad7.Length = Q("50 in")
pad7.Reversed = True

sketch8 = body.newObject("Sketcher::SketchObject", "Sketch007")
sketch8.AttachmentSupport = (doc.getObject("XZ_Plane"), [""])
sketch8.MapMode = "FlatFace"
sketch8.AttachmentOffset = App.Placement(App.Vector(0, 0, 120 * 25.4), App.Rotation())
add_polygon(sketch8, [(0, 2286), (-102, 2286), (-102, 2184), (0, 2184)])
add_polygon(sketch8, [(-1118, 2286), (-1219, 2286), (-1219, 2184), (-1118, 2184)])
sketch8.addConstraint(Sketcher.Constraint("Horizontal", 0))
sketch8.addConstraint(Sketcher.Constraint("Vertical", 1))
sketch8.addConstraint(Sketcher.Constraint("Horizontal", 2))
sketch8.addConstraint(Sketcher.Constraint("Vertical", 3))
sketch8.addConstraint(Sketcher.Constraint("Horizontal", 4))
sketch8.addConstraint(Sketcher.Constraint("Vertical", 5))
sketch8.addConstraint(Sketcher.Constraint("Horizontal", 6))
sketch8.addConstraint(Sketcher.Constraint("Vertical", 7))
sketch8.addConstraint(Sketcher.Constraint("PointOnObject", 2, 2, -2))
sketch8.addConstraint(Sketcher.Constraint("Horizontal", 3, 2, 4, 2))
sketch8.addConstraint(Sketcher.Constraint("Horizontal", 2, 2, 5, 2))
sketch8.addConstraint(Sketcher.Constraint("Equal", 2, 4))
sketch8.addConstraint(Sketcher.Constraint("Equal", 6, 1))
sketch8.addConstraint(Sketcher.Constraint("DistanceX", 0, 2, 0, 1, Q("4 in")))
sketch8.addConstraint(Sketcher.Constraint("DistanceY", -1, 1, 0, 2, Q("90 in")))
sketch8.addConstraint(Sketcher.Constraint("DistanceX", 4, 2, -1, 1, Q("48 in")))
pad8 = body.newObject("PartDesign::Pad", "Pad007")
pad8.Profile = sketch8
pad8.Length = Q("78 in")
pad8.Reversed = True

sketch9 = body.newObject("Sketcher::SketchObject", "Sketch008")
sketch9.AttachmentSupport = (doc.getObject("XZ_Plane"), [""])
sketch9.MapMode = "FlatFace"
sketch9.AttachmentOffset = App.Placement(App.Vector(0, 0, 120 * 25.4), App.Rotation())
add_polygon(sketch9, [(0, 1422), (0, 1524), (-102, 1524), (-102, 1422)])
add_polygon(sketch9, [(-1118, 1524), (-1219, 1524), (-1219, 1422), (-1118, 1422)])
sketch9.addConstraint(Sketcher.Constraint("Vertical", 0))
sketch9.addConstraint(Sketcher.Constraint("Horizontal", 1))
sketch9.addConstraint(Sketcher.Constraint("Vertical", 2))
sketch9.addConstraint(Sketcher.Constraint("Horizontal", 3))
sketch9.addConstraint(Sketcher.Constraint("Horizontal", 4))
sketch9.addConstraint(Sketcher.Constraint("Vertical", 5))
sketch9.addConstraint(Sketcher.Constraint("Horizontal", 6))
sketch9.addConstraint(Sketcher.Constraint("Vertical", 7))
sketch9.addConstraint(Sketcher.Constraint("PointOnObject", 0, 2, -2))
sketch9.addConstraint(Sketcher.Constraint("Horizontal", 1, 2, 4, 2))
sketch9.addConstraint(Sketcher.Constraint("Horizontal", 3, 2, 5, 2))
sketch9.addConstraint(Sketcher.Constraint("Equal", 3, 4))
sketch9.addConstraint(Sketcher.Constraint("Equal", 6, 0))
sketch9.addConstraint(Sketcher.Constraint("DistanceX", 1, 2, 1, 1, Q("4 in")))
sketch9.addConstraint(Sketcher.Constraint("DistanceY", -1, 1, 0, 2, Q("60 in")))
sketch9.addConstraint(Sketcher.Constraint("DistanceX", 4, 2, -1, 1, Q("48 in")))
pad9 = body.newObject("PartDesign::Pad", "Pad008")
pad9.Profile = sketch9
pad9.Length = Q("106 in")
pad9.Reversed = True

sketch10 = body.newObject("Sketcher::SketchObject", "Sketch009")
sketch10.AttachmentSupport = (doc.getObject("XZ_Plane"), [""])
sketch10.MapMode = "FlatFace"
sketch10.AttachmentOffset = App.Placement(App.Vector(0, 0, 120 * 25.4), App.Rotation())
add_polygon(sketch10, [(0, 660), (0, 762), (-102, 762), (-102, 660)])
add_polygon(sketch10, [(-1118, 762), (-1219, 762), (-1219, 660), (-1118, 660)])
sketch10.addConstraint(Sketcher.Constraint("Vertical", 0))
sketch10.addConstraint(Sketcher.Constraint("Horizontal", 1))
sketch10.addConstraint(Sketcher.Constraint("Vertical", 2))
sketch10.addConstraint(Sketcher.Constraint("Horizontal", 3))
sketch10.addConstraint(Sketcher.Constraint("Horizontal", 4))
sketch10.addConstraint(Sketcher.Constraint("Vertical", 5))
sketch10.addConstraint(Sketcher.Constraint("Horizontal", 6))
sketch10.addConstraint(Sketcher.Constraint("Vertical", 7))
sketch10.addConstraint(Sketcher.Constraint("PointOnObject", 0, 2, -2))
sketch10.addConstraint(Sketcher.Constraint("Horizontal", 1, 2, 4, 2))
sketch10.addConstraint(Sketcher.Constraint("Horizontal", 3, 2, 5, 2))
sketch10.addConstraint(Sketcher.Constraint("Equal", 3, 4))
sketch10.addConstraint(Sketcher.Constraint("Equal", 6, 0))
sketch10.addConstraint(Sketcher.Constraint("DistanceX", 1, 2, 1, 1, Q("4 in")))
sketch10.addConstraint(Sketcher.Constraint("DistanceY", -1, 1, 0, 2, Q("30 in")))
sketch10.addConstraint(Sketcher.Constraint("DistanceX", 4, 2, -1, 1, Q("48 in")))
pad10 = body.newObject("PartDesign::Pad", "Pad009")
pad10.Profile = sketch10
pad10.Length = Q("134 in")
pad10.Reversed = True

sketch11 = body.newObject("Sketcher::SketchObject", "Sketch010")
sketch11.AttachmentSupport = (doc.getObject("YZ_Plane"), [""])
sketch11.MapMode = "FlatFace"
add_polygon(sketch11, [(-1870, 2964), (924, -84), (1016, 0), (-1778, 3048)])
sketch11.addConstraint(Sketcher.Constraint("PointOnObject", 1, 2, -1))
sketch11.addConstraint(Sketcher.Constraint("Perpendicular", 0, 1))
sketch11.addConstraint(Sketcher.Constraint("Perpendicular", 1, 2))
sketch11.addConstraint(Sketcher.Constraint("Perpendicular", 2, 3))
sketch11.addConstraint(Sketcher.Constraint("DistanceX", -1, 1, 1, 2, Q("40 in")))
sketch11.addConstraint(Sketcher.Constraint("DistanceX", 2, 2, -1, 1, Q("70 in")))
sketch11.addConstraint(Sketcher.Constraint("DistanceY", -1, 1, 2, 2, Q("120 in")))
sketch11.addConstraint(Sketcher.Constraint("Distance", 1, 124.8248))
pad11 = body.newObject("PartDesign::Pad", "Pad010")
pad11.Profile = sketch11
pad11.Length = Q("4 in")
pad11.Reversed = True
doc.recompute()

datumplane2 = body.newObject("PartDesign::Plane", "DatumPlane001")
datumplane2.AttachmentSupport = (doc.getObject("YZ_Plane"), [""])
datumplane2.MapMode = "FlatFace"
datumplane2.AttachmentOffset = App.Placement(App.Vector(0, 0, -24 * 25.4), App.Rotation())
mirrored2 = body.newObject("PartDesign::Mirrored", "Mirrored001")
mirrored2.Originals = [pad11]
mirrored2.MirrorPlane = (datumplane2, [""])
body.Tip = mirrored2

sketch12 = body.newObject("Sketcher::SketchObject", "Sketch011")
sketch12.AttachmentSupport = (doc.getObject("YZ_Plane"), [""])
sketch12.MapMode = "FlatFace"
add_polygon(sketch12, [(-1303, 3332), (-1778, 3048), (1016, 0), (1457, 237)])
sketch12.addConstraint(Sketcher.Constraint("PointOnObject", 1, 2, -1))
sketch12.addConstraint(Sketcher.Constraint("DistanceX", 0, 2, -1, 1, Q("70 in")))
sketch12.addConstraint(Sketcher.Constraint("DistanceY", -1, 1, 0, 2, Q("120 in")))
sketch12.addConstraint(Sketcher.Constraint("DistanceX", -1, 1, 1, 2, Q("40 in")))
sketch12.addConstraint(Sketcher.Constraint("DistanceX", -1, 1, 2, 2, Q("57.3739 in")))
sketch12.addConstraint(Sketcher.Constraint("DistanceY", -1, 1, 3, 2, Q("131.1898 in")))
sketch12.addConstraint(Sketcher.Constraint("Distance", 0, 553.167))
sketch12.addConstraint(Sketcher.Constraint("Distance", 2, 501.095))
pocket1 = body.newObject("PartDesign::Pocket", "Pocket")
pocket1.Profile = sketch12
pocket1.Type = "ThroughAll"
pocket1.Midplane = True

doc.recompute()
